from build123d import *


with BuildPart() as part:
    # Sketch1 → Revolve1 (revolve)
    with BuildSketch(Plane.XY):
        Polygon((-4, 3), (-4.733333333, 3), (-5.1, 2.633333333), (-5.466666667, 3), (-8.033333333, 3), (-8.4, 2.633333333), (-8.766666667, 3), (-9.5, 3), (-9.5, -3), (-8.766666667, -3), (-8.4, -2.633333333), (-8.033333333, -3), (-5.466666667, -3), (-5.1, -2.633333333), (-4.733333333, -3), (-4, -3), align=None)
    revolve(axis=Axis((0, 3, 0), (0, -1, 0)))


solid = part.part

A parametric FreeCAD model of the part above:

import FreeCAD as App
import Part
import Sketcher

V = App.Vector
Q = App.Units.Quantity

doc = App.newDocument("Part")
body = doc.addObject("PartDesign::Body", "Body")

sketch1 = body.newObject("Sketcher::SketchObject", "Sketch")
sketch1.AttachmentSupport = (doc.getObject("XY_Plane"), [""])
sketch1.MapMode = "FlatFace"
sketch1.addGeometry(Part.LineSegment(V(-4, 3, 0), V(-4.7, 3, 0)), False)
sketch1.addGeometry(Part.LineSegment(V(-4.7, 3, 0), V(-5.1, 2.6, 0)), False)
sketch1.addGeometry(Part.LineSegment(V(-5.1, 2.6, 0), V(-5.5, 3, 0)), False)
sketch1.addGeometry(Part.LineSegment(V(-5.5, 3, 0), V(-8, 3, 0)), False)
sketch1.addGeometry(Part.LineSegment(V(-8, 3, 0), V(-8.4, 2.6, 0)), False)
sketch1.addGeometry(Part.LineSegment(V(-8.4, 2.6, 0), V(-8.8, 3, 0)), False)
sketch1.addGeometry(Part.LineSegment(V(-8.8, 3, 0), V(-9.5, 3, 0)), False)
sketch1.addGeometry(Part.LineSegment(V(-9.5, 3, 0), V(-9.5, -3, 0)), False)
sketch1.addGeometry(Part.LineSegment(V(-9.5, -3, 0), V(-8.8, -3, 0)), False)
sketch1.addGeometry(Part.LineSegment(V(-8.8, -3, 0), V(-8.4, -2.6, 0)), False)
sketch1.addGeometry(Part.LineSegment(V(-8.4, -2.6, 0), V(-8, -3, 0)), False)
sketch1.addGeometry(Part.LineSegment(V(-8, -3, 0), V(-5.5, -3, 0)), False)
sketch1.addGeometry(Part.LineSegment(V(-5.5, -3, 0), V(-5.1, -2.6, 0)), False)
sketch1.addGeometry(Part.LineSegment(V(-5.1, -2.6, 0), V(-4.7, -3, 0)), False)
sketch1.addGeometry(Part.LineSegment(V(-4.7, -3, 0), V(-4, -3, 0)), False)
sketch1.addGeometry(Part.LineSegment(V(-4, -3, 0), V(-4, 3, 0)), False)
sketch1.addConstraint(Sketcher.Constraint("Coincident", 0, 2, 1, 1))
sketch1.addConstraint(Sketcher.Constraint("Coincident", 1, 2, 2, 1))
sketch1.addConstraint(Sketcher.Constraint("Coincident", 2, 2, 3, 1))
sketch1.addConstraint(Sketcher.Constraint("Coincident", 3, 2, 4, 1))
sketch1.addConstraint(Sketcher.Constraint("Coincident", 4, 2, 5, 1))
sketch1.addConstraint(Sketcher.Constraint("Coincident", 5, 2, 6, 1))
sketch1.addConstraint(Sketcher.Constraint("Coincident", 6, 2, 7, 1))
sketch1.addConstraint(Sketcher.Constraint("Coincident", 7, 2, 8, 1))
sketch1.addConstraint(Sketcher.Constraint("Coincident", 8, 2, 9, 1))
sketch1.addConstraint(Sketcher.Constraint("Coincident", 9, 2, 10, 1))
sketch1.addConstraint(Sketcher.Constraint("Coincident", 10, 2, 11, 1))
sketch1.addConstraint(Sketcher.Constraint("Coincident", 11, 2, 12, 1))
sketch1.addConstraint(Sketcher.Constraint("Coincident", 12, 2, 13, 1))
sketch1.addConstraint(Sketcher.Constraint("Coincident", 13, 2, 14, 1))
sketch1.addConstraint(Sketcher.Constraint("Coincident", 14, 2, 15, 1))
sketch1.addConstraint(Sketcher.Constraint("Coincident", 15, 2, 0, 1))
sketch1.addConstraint(Sketcher.Constraint("Horizontal", 0))
sketch1.addConstraint(Sketcher.Constraint("Horizontal", 3))
sketch1.addConstraint(Sketcher.Constraint("Horizontal", 6))
sketch1.addConstraint(Sketcher.Constraint("Vertical", 7))
sketch1.addConstraint(Sketcher.Constraint("Horizontal", 8))
sketch1.addConstraint(Sketcher.Constraint("Horizontal", 11))
sketch1.addConstraint(Sketcher.Constraint("Horizontal", 14))
sketch1.addConstraint(Sketcher.Constraint("Vertical", 15))
sketch1.addConstraint(Sketcher.Constraint("Symmetric", 5, 2, 8, 2, -1))
sketch1.addConstraint(Sketcher.Constraint("Symmetric", 4, 2, 9, 2, -1))
sketch1.addConstraint(Sketcher.Constraint("Symmetric", 3, 2, 10, 2, -1))
sketch1.addConstraint(Sketcher.Constraint("Symmetric", 1, 2, 12, 2, -1))
sketch1.addConstraint(Sketcher.Constraint("Symmetric", 0, 2, 13, 2, -1))
sketch1.addConstraint(Sketcher.Constraint("Perpendicular", 1, 2))
sketch1.addConstraint(Sketcher.Constraint("Perpendicular", 2, 4))
sketch1.addConstraint(Sketcher.Constraint("Perpendicular", 4, 5))
sketch1.addConstraint(Sketcher.Constraint("Perpendicular", 5, 9))
sketch1.addConstraint(Sketcher.Constraint("Perpendicular", 10, 12))
sketch1.addConstraint(Sketcher.Constraint("Horizontal", 0, 2, 2, 2))
sketch1.addConstraint(Sketcher.Constraint("Horizontal", 1, 2, 4, 2))
sketch1.addConstraint(Sketcher.Constraint("Horizontal", 3, 2, 5, 2))
sketch1.addConstraint(Sketcher.Constraint("Equal", 0, 6))
sketch1.addConstraint(Sketcher.Constraint("DistanceY", 7, 2, 7, 1, Q("6 mm")))
sketch1.addConstraint(Sketcher.Constraint("DistanceX", 14, 2, -1, 1, Q("4 mm")))
sketch1.addConstraint(Sketcher.Constraint("DistanceX", 1, 2, -1, 1, Q("5.1 mm")))
sketch1.addConstraint(Sketcher.Constraint("DistanceX", 4, 2, -1, 1, Q("8.4 mm")))
sketch1.addConstraint(Sketcher.Constraint("DistanceX", 0, 2, 0, 1, Q("0.733333 mm")))
revolution = body.newObject("PartDesign::Revolution", "Revolution")
revolution.Profile = sketch1
revolution.ReferenceAxis = (sketch1, ["V_Axis"])
revolution.Angle = 360

doc.recompute()
